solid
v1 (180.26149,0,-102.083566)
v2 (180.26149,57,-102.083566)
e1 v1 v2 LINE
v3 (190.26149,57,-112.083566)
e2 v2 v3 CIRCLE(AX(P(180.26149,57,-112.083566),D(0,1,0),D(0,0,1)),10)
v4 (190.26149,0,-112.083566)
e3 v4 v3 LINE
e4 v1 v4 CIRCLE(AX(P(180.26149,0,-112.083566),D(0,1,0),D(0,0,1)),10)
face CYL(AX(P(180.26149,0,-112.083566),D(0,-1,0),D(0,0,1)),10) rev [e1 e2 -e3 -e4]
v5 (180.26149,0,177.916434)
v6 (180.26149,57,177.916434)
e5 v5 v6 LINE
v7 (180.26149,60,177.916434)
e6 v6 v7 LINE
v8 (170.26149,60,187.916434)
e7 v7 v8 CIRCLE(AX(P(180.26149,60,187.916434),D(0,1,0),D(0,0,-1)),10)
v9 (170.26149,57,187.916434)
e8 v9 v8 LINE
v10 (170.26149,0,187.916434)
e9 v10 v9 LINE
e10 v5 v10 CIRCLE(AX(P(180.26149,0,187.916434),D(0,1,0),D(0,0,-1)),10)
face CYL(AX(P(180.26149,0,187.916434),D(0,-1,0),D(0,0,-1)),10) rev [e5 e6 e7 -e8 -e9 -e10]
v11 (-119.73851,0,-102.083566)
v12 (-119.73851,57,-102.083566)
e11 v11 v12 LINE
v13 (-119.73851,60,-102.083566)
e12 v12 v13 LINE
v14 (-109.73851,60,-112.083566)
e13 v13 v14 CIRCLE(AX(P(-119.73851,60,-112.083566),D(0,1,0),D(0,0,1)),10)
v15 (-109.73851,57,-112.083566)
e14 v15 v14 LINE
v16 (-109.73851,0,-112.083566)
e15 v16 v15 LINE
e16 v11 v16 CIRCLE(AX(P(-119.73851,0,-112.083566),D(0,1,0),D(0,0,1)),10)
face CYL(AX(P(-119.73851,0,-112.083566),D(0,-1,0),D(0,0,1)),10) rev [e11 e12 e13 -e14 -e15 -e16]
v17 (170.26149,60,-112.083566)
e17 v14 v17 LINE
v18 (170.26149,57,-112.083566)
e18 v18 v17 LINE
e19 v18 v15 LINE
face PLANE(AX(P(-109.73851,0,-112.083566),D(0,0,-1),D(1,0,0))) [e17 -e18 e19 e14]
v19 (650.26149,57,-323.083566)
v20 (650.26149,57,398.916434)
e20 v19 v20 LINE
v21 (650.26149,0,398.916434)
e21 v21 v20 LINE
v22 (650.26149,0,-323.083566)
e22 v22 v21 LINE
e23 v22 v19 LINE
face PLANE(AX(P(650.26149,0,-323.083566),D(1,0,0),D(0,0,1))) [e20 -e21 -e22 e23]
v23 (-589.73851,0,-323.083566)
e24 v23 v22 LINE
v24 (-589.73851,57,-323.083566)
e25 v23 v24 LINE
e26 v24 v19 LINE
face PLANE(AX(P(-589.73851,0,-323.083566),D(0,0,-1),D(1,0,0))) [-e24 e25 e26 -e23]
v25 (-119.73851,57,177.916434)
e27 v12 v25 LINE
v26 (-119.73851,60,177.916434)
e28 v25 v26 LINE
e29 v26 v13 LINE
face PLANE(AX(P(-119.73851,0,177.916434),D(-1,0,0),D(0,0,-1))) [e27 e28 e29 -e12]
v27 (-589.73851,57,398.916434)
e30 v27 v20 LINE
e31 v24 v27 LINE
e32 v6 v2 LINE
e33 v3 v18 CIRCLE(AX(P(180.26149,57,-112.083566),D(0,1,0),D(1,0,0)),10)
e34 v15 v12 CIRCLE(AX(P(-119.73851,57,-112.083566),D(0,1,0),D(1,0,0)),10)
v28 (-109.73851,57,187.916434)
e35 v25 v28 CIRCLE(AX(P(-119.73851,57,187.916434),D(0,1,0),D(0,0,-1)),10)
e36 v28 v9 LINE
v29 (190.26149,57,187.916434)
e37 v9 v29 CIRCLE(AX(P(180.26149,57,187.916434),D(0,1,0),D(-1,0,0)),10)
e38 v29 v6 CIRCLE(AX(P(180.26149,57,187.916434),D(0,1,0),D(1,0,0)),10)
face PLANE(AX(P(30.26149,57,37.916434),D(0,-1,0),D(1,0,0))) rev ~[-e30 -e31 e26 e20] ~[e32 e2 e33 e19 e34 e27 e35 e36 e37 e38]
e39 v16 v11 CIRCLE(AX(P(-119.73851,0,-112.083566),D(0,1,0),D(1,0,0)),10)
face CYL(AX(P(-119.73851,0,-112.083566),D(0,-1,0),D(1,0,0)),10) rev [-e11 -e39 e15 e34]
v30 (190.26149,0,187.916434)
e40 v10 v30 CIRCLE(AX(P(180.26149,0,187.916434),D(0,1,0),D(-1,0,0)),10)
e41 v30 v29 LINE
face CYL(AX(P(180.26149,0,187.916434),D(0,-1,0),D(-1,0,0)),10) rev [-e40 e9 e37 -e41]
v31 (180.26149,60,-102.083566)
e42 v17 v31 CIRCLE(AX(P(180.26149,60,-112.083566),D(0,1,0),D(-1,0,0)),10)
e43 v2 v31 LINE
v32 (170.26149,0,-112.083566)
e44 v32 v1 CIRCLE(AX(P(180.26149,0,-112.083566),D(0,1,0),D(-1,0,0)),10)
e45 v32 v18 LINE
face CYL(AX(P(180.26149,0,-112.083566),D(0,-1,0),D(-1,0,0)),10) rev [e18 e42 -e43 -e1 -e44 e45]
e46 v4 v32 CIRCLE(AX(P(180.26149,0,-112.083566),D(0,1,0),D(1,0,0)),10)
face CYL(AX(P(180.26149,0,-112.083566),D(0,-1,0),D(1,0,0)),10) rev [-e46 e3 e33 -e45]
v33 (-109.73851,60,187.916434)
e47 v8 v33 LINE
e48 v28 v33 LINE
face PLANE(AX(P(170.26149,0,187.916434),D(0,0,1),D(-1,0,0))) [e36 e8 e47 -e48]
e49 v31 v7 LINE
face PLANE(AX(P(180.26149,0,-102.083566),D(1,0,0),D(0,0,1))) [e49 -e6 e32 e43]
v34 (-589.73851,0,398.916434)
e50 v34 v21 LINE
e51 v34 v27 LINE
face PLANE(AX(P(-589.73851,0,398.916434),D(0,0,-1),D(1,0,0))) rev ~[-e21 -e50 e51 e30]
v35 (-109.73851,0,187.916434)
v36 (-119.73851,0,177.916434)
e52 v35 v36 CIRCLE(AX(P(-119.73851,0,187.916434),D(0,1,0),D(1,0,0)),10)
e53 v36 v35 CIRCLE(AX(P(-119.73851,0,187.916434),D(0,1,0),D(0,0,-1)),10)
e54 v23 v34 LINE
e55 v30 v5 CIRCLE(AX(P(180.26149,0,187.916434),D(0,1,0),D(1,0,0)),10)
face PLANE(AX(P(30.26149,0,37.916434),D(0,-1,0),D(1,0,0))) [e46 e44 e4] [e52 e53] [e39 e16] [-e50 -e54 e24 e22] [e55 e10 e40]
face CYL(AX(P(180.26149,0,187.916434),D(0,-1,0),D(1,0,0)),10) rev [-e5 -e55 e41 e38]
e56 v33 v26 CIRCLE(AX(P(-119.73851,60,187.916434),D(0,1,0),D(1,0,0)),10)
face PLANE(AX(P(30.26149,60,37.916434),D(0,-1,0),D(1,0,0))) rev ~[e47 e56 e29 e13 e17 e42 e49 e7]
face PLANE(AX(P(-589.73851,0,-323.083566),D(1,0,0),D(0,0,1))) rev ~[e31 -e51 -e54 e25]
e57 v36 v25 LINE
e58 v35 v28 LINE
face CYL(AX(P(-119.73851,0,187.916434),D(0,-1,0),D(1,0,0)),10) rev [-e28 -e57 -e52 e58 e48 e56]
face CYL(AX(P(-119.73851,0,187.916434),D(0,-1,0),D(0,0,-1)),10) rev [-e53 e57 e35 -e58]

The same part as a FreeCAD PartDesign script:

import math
import FreeCAD as App
import Part
import Sketcher

V = App.Vector
Q = App.Units.Quantity


def add_polygon(sketch, points):
    """Adds a closed chain of lines whose ends are joined by coincident constraints."""
    first, n = sketch.GeometryCount, len(points)
    for a, b in zip(points, points[1:] + points[:1]):
        sketch.addGeometry(Part.LineSegment(App.Vector(*a, 0), App.Vector(*b, 0)), False)
    for i in range(n):
        sketch.addConstraint(Sketcher.Constraint("Coincident", first + i, 2, first + (i + 1) % n, 1))

doc = App.newDocument("Part")
params = doc.addObject("Spreadsheet::Sheet", "Params")
for row, (alias, value) in enumerate([
    ("sketch1_radius", "10 mm"),
    ("sketch1_width", "1240 mm"),
    ("sketch1_width2", "280 mm"),
    ("sketch1_height", "722 mm"),
    ("pad1_length", "57 mm"),
    ("sketch2_radius", "10 mm"),
    ("sketch2_width", "280 mm"),
    ("pad2_length", "60 mm"),
], start=1):
    params.set(f"A{row}", alias)
    params.set(f"B{row}", "=" + value)
    params.setAlias(f"B{row}", alias)

body = doc.addObject("PartDesign::Body", "Body")

# Sketch on XZ plane
sketch1 = doc.addObject("Sketcher::SketchObject", "Sketch")
body.addObject(sketch1)
sketch1.AttachmentSupport = (doc.XZ_Plane, [""])
sketch1.MapMode = "FlatFace"
add_polygon(sketch1, [(-590, 399), (-590, -323), (650, -323), (650, 399)])  # lines 0-3
sketch1.addGeometry(Part.LineSegment(V(-120, -102, 0), V(-120, 178, 0)), False)  # 4
sketch1.addGeometry(Part.ArcOfCircle(Part.Circle(V(-120, 188, 0), V(0, 0, 1), 10), math.radians(0), math.radians(270)), False)  # 5
sketch1.addGeometry(Part.LineSegment(V(-110, 188, 0), V(170, 188, 0)), False)  # 6
sketch1.addGeometry(Part.ArcOfCircle(Part.Circle(V(180, 188, 0), V(0, 0, 1), 10), math.radians(0), math.radians(180)), False)  # 7
sketch1.addGeometry(Part.ArcOfCircle(Part.Circle(V(180, 188, 0), V(0, 0, 1), 10), math.radians(-90), math.radians(0)), False)  # 8
sketch1.addGeometry(Part.LineSegment(V(180, 178, 0), V(180, -102, 0)), False)  # 9
sketch1.addGeometry(Part.ArcOfCircle(Part.Circle(V(180, -112, 0), V(0, 0, 1), 10), math.radians(0), math.radians(90)), False)  # 10
sketch1.addGeometry(Part.ArcOfCircle(Part.Circle(V(180, -112, 0), V(0, 0, 1), 10), math.radians(180), math.radians(360)), False)  # 11
sketch1.addGeometry(Part.LineSegment(V(170, -112, 0), V(-110, -112, 0)), False)  # 12
sketch1.addGeometry(Part.ArcOfCircle(Part.Circle(V(-120, -112, 0), V(0, 0, 1), 10), math.radians(90), math.radians(360)), False)  # 13
sketch1.addConstraint([
    Sketcher.Constraint("Coincident", 4, 2, 5, 2),
    Sketcher.Constraint("Coincident", 5, 1, 6, 1),
    Sketcher.Constraint("Coincident", 6, 2, 7, 2),
    Sketcher.Constraint("Tangent", 7, 1, 8, 2),
    Sketcher.Constraint("Coincident", 8, 1, 9, 1),
    Sketcher.Constraint("Coincident", 9, 2, 10, 2),
    Sketcher.Constraint("Tangent", 10, 1, 11, 2),
    Sketcher.Constraint("Coincident", 11, 1, 12, 1),
    Sketcher.Constraint("Coincident", 12, 2, 13, 2),
    Sketcher.Constraint("Coincident", 13, 1, 4, 1),
    Sketcher.Constraint("Vertical", 0),
    Sketcher.Constraint("Horizontal", 1),
    Sketcher.Constraint("Vertical", 2),
    Sketcher.Constraint("Horizontal", 3),
    Sketcher.Constraint("Vertical", 4),
    Sketcher.Constraint("Horizontal", 6),
    Sketcher.Constraint("Vertical", 9),
    Sketcher.Constraint("Horizontal", 12),
    Sketcher.Constraint("Equal", 5, 7),
    Sketcher.Constraint("Equal", 7, 8),
    Sketcher.Constraint("Equal", 8, 10),
    Sketcher.Constraint("Equal", 10, 11),
    Sketcher.Constraint("Equal", 11, 13),
    Sketcher.Constraint("Horizontal", 5, 3, 7, 3),
    Sketcher.Constraint("Horizontal", 11, 3, 13, 3),
    Sketcher.Constraint("Horizontal", 8, 3, 5, 1),
    Sketcher.Constraint("Horizontal", 6, 2, 7, 1),
    Sketcher.Constraint("Horizontal", 13, 3, 10, 1),
    Sketcher.Constraint("Horizontal", 10, 1, 11, 1),
    Sketcher.Constraint("Vertical", 8, 3, 10, 3),
    Sketcher.Constraint("Vertical", 5, 3, 13, 3),
    Sketcher.Constraint("Vertical", 13, 3, 4, 2),
    Sketcher.Constraint("Vertical", 11, 3, 8, 1),
    Sketcher.Constraint("Equal", 12, 4),
    Sketcher.Constraint("Radius", 5, Q("10 mm")),
    Sketcher.Constraint("DistanceX", 1, 1, 1, 2, Q("1240 mm")),
    Sketcher.Constraint("DistanceX", 6, 1, 6, 2, Q("280 mm")),
    Sketcher.Constraint("DistanceY", 0, 2, 0, 1, Q("722 mm")),
    Sketcher.Constraint("DistanceX", 0, 2, 13, 3, Q("470 mm")),
    Sketcher.Constraint("DistanceY", 0, 2, 13, 3, Q("211 mm")),
    Sketcher.Constraint("DistanceX", 5, 3, -1, 1, Q("119.73851 mm")),
    Sketcher.Constraint("DistanceY", -1, 1, 5, 3, Q("187.916434 mm")),
])
sketch1.setExpression("Constraints[38]", "Params.sketch1_radius")
sketch1.setExpression("Constraints[39]", "Params.sketch1_width")
sketch1.setExpression("Constraints[40]", "Params.sketch1_width2")
sketch1.setExpression("Constraints[41]", "Params.sketch1_height")
pad1 = doc.addObject("PartDesign::Pad", "Pad")
body.addObject(pad1)
pad1.Profile = sketch1
pad1.setExpression("Length", "Params.pad1_length")
pad1.Reversed = True

# Sketch on XZ plane
sketch2 = doc.addObject("Sketcher::SketchObject", "Sketch001")
body.addObject(sketch2)
sketch2.AttachmentSupport = (doc.XZ_Plane, [""])
sketch2.MapMode = "FlatFace"
sketch2.addGeometry([
    Part.LineSegment(V(170, 188, 0), V(-110, 188, 0)),  # 0
    Part.ArcOfCircle(Part.Circle(V(-120, 188, 0), V(0, 0, 1), 10), math.radians(-90), math.radians(0)),  # 1
    Part.LineSegment(V(-120, 178, 0), V(-120, -102, 0)),  # 2
    Part.ArcOfCircle(Part.Circle(V(-120, -112, 0), V(0, 0, 1), 10), math.radians(0), math.radians(90)),  # 3
    Part.LineSegment(V(-110, -112, 0), V(170, -112, 0)),  # 4
    Part.ArcOfCircle(Part.Circle(V(180, -112, 0), V(0, 0, 1), 10), math.radians(90), math.radians(180)),  # 5
    Part.LineSegment(V(180, -102, 0), V(180, 178, 0)),  # 6
    Part.ArcOfCircle(Part.Circle(V(180, 188, 0), V(0, 0, 1), 10), math.radians(180), math.radians(270)),  # 7
], False)
sketch2.addConstraint([
    Sketcher.Constraint("Coincident", 0, 2, 1, 2),
    Sketcher.Constraint("Coincident", 1, 1, 2, 1),
    Sketcher.Constraint("Coincident", 2, 2, 3, 2),
    Sketcher.Constraint("Coincident", 3, 1, 4, 1),
    Sketcher.Constraint("Coincident", 4, 2, 5, 2),
    Sketcher.Constraint("Coincident", 5, 1, 6, 1),
    Sketcher.Constraint("Coincident", 6, 2, 7, 2),
    Sketcher.Constraint("Coincident", 7, 1, 0, 1),
    Sketcher.Constraint("Horizontal", 0),
    Sketcher.Constraint("Vertical", 2),
    Sketcher.Constraint("Horizontal", 4),
    Sketcher.Constraint("Vertical", 6),
    Sketcher.Constraint("Equal", 1, 3),
    Sketcher.Constraint("Equal", 3, 5),
    Sketcher.Constraint("Equal", 5, 7),
    Sketcher.Constraint("Horizontal", 3, 3, 5, 3),
    Sketcher.Constraint("Horizontal", 1, 3, 7, 3),
    Sketcher.Constraint("Horizontal", 7, 3, 0, 2),
    Sketcher.Constraint("Horizontal", 5, 3, 3, 1),
    Sketcher.Constraint("Vertical", 1, 3, 3, 3),
    Sketcher.Constraint("Vertical", 5, 3, 7, 3),
    Sketcher.Constraint("Vertical", 3, 3, 1, 1),
    Sketcher.Constraint("Vertical", 7, 3, 5, 1),
    Sketcher.Constraint("Equal", 4, 2),
    Sketcher.Constraint("Radius", 1, Q("10 mm")),
    Sketcher.Constraint("DistanceX", 0, 2, 0, 1, Q("280 mm")),
    Sketcher.Constraint("DistanceX", 1, 3, -1, 1, Q("119.73851 mm")),
    Sketcher.Constraint("DistanceY", -1, 1, 1, 3, Q("187.916434 mm")),
])
sketch2.setExpression("Constraints[24]", "Params.sketch2_radius")
sketch2.setExpression("Constraints[25]", "Params.sketch2_width")
pad2 = doc.addObject("PartDesign::Pad", "Pad001")
body.addObject(pad2)
pad2.Profile = sketch2
pad2.setExpression("Length", "Params.pad2_length")
pad2.Reversed = True

doc.recompute()
